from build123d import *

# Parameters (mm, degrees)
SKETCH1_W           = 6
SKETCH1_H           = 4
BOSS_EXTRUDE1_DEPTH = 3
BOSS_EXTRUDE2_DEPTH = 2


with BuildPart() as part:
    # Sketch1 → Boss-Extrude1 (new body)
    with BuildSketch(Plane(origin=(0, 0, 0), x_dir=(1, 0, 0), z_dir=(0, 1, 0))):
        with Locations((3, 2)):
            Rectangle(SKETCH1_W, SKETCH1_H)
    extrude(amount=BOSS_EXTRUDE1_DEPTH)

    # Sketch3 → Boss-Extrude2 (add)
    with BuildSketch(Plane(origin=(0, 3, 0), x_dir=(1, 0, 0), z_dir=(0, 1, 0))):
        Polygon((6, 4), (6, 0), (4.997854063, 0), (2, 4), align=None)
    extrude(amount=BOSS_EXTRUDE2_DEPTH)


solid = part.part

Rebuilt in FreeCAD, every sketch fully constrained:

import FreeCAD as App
import Part
import Sketcher
Q = App.Units.Quantity

doc = App.newDocument("Part")
body = doc.addObject("PartDesign::Body", "Body")

sketch1 = body.newObject("Sketcher::SketchObject", "Sketch")
sketch1.AttachmentSupport = (doc.getObject("XZ_Plane"), [""])
sketch1.MapMode = "FlatFace"
sketch1.addGeometry([
    Part.LineSegment(App.Vector(0, -4, 0), App.Vector(0, 0, 0)),
    Part.LineSegment(App.Vector(0, 0, 0), App.Vector(6, 0, 0)),
    Part.LineSegment(App.Vector(6, 0, 0), App.Vector(6, -4, 0)),
    Part.LineSegment(App.Vector(6, -4, 0), App.Vector(0, -4, 0)),
], False)
sketch1.addConstraint([
    Sketcher.Constraint("Coincident", 0, 2, 1, 1),
    Sketcher.Constraint("Coincident", 1, 2, 2, 1),
    Sketcher.Constraint("Coincident", 2, 2, 3, 1),
    Sketcher.Constraint("Coincident", 3, 2, 0, 1),
    Sketcher.Constraint("Vertical", 0),
    Sketcher.Constraint("Horizontal", 1),
    Sketcher.Constraint("Vertical", 2),
    Sketcher.Constraint("Horizontal", 3),
    Sketcher.Constraint("Coincident", 0, 2, -1, 1),
    Sketcher.Constraint("DistanceX", 1, 1, 1, 2, Q("6 mm")),
    Sketcher.Constraint("DistanceY", 0, 1, 0, 2, Q("4 mm")),
])
pad1 = body.newObject("PartDesign::Pad", "Pad")
pad1.Profile = sketch1
pad1.Length = 3
pad1.Reversed = True

sketch2 = body.newObject("Sketcher::SketchObject", "Sketch001")
sketch2.AttachmentSupport = (doc.getObject("XZ_Plane"), [""])
sketch2.MapMode = "FlatFace"
sketch2.AttachmentOffset = App.Placement(App.Vector(0, 0, -3), App.Rotation())
sketch2.addGeometry([
    Part.LineSegment(App.Vector(6, 0, 0), App.Vector(6, -4, 0)),
    Part.LineSegment(App.Vector(6, -4, 0), App.Vector(2, -4, 0)),
    Part.LineSegment(App.Vector(2, -4, 0), App.Vector(4.997854, 0, 0)),
    Part.LineSegment(App.Vector(4.997854, 0, 0), App.Vector(6, 0, 0)),
], False)
sketch2.addConstraint([
    Sketcher.Constraint("Coincident", 0, 2, 1, 1),
    Sketcher.Constraint("Coincident", 1, 2, 2, 1),
    Sketcher.Constraint("Coincident", 2, 2, 3, 1),
    Sketcher.Constraint("Coincident", 3, 2, 0, 1),
    Sketcher.Constraint("Vertical", 0),
    Sketcher.Constraint("Horizontal", 1),
    Sketcher.Constraint("Horizontal", 3),
    Sketcher.Constraint("PointOnObject", 2, 2, -1),
    Sketcher.Constraint("Equal", 1, 0),
    Sketcher.Constraint("DistanceX", 1, 2, 1, 1, Q("4 mm")),
    Sketcher.Constraint("DistanceX", -1, 1, 0, 2, Q("6 mm")),
    Sketcher.Constraint("DistanceX", 3, 1, 3, 2, Q("1.002146 mm")),
])
pad2 = body.newObject("PartDesign::Pad", "Pad001")
pad2.Profile = sketch2
pad2.Length = 2
pad2.Reversed = True

doc.recompute()
